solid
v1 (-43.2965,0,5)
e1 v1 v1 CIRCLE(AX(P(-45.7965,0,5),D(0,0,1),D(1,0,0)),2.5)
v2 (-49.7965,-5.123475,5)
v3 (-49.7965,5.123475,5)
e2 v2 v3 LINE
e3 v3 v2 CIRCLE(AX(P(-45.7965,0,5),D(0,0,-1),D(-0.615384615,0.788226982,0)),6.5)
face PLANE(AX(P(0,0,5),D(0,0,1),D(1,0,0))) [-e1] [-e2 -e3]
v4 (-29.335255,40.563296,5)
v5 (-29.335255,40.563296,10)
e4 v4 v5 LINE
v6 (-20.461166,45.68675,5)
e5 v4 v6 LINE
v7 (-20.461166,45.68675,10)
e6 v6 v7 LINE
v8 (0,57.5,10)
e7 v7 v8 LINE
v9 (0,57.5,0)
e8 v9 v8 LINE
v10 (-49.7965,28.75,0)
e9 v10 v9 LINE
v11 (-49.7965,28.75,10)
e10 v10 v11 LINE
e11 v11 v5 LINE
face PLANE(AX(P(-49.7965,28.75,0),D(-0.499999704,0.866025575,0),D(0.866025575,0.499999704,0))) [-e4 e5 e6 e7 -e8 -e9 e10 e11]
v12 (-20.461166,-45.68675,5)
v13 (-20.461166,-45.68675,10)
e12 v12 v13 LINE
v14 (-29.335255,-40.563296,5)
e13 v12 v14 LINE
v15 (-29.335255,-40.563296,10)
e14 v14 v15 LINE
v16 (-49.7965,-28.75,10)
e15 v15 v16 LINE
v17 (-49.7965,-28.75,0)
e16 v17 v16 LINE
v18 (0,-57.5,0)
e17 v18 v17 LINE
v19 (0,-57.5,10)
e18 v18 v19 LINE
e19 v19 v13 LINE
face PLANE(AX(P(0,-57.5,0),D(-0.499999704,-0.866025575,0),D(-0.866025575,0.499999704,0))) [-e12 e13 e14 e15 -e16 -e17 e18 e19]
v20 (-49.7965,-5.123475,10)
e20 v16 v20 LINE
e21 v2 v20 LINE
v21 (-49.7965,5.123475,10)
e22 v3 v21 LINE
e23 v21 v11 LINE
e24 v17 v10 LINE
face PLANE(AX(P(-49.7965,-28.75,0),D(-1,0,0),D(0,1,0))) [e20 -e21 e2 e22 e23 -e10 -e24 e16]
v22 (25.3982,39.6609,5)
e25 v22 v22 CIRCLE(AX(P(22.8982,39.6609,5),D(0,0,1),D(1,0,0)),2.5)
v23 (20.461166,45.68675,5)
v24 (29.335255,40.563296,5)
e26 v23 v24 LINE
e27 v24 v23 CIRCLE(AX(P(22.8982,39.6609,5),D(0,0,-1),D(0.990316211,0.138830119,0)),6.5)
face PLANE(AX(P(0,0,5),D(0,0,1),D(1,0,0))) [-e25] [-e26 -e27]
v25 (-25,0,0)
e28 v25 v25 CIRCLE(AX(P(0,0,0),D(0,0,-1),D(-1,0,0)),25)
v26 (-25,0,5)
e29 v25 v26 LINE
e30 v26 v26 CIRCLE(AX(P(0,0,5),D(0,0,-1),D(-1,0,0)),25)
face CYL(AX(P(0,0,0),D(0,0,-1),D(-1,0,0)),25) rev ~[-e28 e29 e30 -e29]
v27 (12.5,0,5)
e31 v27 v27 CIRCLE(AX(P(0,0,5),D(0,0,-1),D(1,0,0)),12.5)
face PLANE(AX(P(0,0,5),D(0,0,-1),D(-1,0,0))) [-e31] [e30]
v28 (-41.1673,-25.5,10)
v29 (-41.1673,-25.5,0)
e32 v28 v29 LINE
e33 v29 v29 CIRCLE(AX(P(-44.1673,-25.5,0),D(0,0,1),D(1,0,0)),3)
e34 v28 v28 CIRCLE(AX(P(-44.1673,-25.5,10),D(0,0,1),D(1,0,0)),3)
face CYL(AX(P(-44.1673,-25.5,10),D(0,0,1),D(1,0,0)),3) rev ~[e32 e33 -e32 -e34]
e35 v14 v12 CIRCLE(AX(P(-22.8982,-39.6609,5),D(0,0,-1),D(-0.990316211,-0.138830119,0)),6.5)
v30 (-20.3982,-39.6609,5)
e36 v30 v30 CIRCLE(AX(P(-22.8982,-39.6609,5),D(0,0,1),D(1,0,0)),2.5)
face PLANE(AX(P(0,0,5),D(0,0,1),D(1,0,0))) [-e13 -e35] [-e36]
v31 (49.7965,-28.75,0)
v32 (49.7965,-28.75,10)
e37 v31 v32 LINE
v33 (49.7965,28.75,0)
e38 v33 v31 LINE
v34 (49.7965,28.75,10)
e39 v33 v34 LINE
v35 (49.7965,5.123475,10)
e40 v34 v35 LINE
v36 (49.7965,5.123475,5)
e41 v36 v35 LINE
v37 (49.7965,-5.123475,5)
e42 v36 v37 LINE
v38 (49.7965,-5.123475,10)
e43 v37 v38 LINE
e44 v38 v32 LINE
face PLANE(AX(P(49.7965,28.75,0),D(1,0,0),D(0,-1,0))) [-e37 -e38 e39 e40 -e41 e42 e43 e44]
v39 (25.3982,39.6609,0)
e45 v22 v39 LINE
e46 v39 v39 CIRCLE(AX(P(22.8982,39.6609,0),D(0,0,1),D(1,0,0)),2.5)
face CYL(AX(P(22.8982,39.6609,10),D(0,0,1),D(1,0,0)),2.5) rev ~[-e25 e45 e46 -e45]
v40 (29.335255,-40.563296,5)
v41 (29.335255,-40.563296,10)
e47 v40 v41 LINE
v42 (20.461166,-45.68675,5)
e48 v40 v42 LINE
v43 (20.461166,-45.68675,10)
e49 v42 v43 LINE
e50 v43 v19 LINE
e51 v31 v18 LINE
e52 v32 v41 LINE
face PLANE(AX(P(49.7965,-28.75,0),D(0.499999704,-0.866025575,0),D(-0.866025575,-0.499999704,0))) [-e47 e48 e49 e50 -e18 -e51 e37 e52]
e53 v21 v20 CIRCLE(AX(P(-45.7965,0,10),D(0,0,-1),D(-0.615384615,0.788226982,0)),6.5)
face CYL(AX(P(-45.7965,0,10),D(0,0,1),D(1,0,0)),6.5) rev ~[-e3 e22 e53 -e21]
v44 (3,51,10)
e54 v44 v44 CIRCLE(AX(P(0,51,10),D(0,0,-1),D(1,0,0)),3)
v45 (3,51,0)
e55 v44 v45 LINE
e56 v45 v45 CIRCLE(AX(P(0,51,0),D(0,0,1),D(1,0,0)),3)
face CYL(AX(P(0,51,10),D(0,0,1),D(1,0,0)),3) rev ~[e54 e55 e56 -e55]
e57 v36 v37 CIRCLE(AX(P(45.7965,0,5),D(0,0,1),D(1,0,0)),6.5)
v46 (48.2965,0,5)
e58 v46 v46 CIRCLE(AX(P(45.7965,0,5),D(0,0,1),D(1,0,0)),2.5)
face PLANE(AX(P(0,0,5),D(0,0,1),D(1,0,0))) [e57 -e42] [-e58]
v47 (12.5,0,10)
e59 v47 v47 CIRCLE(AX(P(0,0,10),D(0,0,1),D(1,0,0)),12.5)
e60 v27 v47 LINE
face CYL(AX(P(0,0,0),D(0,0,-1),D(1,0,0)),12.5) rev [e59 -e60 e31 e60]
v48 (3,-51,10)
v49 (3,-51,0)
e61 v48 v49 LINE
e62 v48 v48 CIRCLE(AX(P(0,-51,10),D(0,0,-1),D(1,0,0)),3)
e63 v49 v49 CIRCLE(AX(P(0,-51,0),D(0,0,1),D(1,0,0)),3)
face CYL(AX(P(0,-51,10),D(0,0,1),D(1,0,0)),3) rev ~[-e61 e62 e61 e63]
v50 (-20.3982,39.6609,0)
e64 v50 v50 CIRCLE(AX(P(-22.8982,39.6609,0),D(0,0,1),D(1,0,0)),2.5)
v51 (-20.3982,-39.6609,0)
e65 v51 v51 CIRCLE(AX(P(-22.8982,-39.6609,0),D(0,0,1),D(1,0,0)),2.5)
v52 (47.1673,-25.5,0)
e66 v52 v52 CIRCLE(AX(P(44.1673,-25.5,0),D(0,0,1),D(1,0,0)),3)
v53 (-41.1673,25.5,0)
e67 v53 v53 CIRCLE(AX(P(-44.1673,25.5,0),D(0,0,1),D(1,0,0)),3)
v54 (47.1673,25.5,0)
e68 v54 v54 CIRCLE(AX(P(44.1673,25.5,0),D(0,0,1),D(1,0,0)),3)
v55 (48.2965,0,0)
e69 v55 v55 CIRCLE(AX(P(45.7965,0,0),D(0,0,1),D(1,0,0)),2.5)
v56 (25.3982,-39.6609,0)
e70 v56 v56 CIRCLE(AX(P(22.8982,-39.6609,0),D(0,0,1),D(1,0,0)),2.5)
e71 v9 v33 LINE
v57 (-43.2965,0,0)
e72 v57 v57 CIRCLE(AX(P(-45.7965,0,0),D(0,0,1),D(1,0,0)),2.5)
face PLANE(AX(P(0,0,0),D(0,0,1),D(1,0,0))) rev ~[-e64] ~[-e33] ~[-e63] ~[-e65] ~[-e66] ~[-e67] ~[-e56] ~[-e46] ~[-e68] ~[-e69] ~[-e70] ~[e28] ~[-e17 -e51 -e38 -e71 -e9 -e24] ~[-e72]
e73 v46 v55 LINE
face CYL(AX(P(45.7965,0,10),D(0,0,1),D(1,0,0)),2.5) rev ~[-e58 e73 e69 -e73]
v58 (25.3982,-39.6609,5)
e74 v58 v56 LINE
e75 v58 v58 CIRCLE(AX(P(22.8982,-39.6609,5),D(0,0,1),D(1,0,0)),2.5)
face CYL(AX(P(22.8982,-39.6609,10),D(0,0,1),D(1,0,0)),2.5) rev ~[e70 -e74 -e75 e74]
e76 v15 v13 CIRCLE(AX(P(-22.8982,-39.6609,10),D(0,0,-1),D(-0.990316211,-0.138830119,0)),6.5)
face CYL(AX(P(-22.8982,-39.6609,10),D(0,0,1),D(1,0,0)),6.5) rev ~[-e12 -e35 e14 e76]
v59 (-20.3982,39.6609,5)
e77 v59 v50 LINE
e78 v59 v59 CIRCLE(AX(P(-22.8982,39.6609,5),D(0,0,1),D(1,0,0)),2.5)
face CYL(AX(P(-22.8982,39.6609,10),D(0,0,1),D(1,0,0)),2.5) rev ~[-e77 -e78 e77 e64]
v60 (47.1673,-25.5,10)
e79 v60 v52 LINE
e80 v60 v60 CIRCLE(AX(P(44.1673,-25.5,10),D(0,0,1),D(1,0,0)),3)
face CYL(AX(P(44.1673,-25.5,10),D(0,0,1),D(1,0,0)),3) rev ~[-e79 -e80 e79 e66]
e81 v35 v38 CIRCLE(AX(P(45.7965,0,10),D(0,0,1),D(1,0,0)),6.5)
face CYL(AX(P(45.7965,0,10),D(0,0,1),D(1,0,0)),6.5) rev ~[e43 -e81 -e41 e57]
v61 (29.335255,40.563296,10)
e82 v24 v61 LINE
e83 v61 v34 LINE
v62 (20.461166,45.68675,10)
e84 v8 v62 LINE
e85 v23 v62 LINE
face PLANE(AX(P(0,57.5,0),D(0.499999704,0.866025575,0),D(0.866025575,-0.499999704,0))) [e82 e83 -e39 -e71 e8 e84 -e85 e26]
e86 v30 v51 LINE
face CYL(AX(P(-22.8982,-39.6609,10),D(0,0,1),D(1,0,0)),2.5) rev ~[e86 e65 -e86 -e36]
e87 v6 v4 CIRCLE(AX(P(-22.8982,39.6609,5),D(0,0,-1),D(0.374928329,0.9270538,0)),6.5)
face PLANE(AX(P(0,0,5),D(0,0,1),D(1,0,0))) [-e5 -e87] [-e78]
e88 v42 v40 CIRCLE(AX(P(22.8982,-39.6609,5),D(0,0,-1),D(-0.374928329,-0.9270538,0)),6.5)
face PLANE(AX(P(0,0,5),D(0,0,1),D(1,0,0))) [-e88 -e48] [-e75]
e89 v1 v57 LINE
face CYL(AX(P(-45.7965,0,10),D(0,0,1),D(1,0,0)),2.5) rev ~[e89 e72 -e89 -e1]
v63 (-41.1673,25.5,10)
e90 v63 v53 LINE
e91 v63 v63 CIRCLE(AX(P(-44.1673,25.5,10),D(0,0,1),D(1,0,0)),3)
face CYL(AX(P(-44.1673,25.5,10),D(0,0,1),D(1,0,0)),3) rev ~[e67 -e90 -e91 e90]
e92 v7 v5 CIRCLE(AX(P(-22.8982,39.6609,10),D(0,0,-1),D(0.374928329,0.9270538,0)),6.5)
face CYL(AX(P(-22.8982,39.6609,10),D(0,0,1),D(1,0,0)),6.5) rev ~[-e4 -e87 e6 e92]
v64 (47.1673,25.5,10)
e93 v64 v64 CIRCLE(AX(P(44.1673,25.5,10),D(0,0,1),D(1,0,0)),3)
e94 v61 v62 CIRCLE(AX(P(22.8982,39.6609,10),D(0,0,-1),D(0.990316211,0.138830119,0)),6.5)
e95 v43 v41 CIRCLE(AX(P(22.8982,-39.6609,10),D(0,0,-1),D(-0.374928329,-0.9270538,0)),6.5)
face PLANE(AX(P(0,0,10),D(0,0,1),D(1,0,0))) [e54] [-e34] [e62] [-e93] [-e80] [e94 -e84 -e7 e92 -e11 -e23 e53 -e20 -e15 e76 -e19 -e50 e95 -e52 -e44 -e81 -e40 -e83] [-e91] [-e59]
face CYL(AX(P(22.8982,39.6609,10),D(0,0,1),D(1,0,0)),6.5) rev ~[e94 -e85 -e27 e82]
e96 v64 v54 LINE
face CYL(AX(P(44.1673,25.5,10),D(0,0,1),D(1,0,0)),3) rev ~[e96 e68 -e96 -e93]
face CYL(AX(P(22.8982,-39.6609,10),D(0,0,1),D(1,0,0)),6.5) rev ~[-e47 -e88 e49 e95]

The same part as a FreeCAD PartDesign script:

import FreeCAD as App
import Part
import Sketcher

V = App.Vector
Q = App.Units.Quantity

doc = App.newDocument("Part")
body = doc.addObject("PartDesign::Body", "Body")

# Sketch on XY plane
sketch1 = body.newObject("Sketcher::SketchObject", "Sketch")
sketch1.AttachmentSupport = (doc.getObject("XY_Plane"), [""])
sketch1.MapMode = "FlatFace"
sketch1.addGeometry([
    Part.LineSegment(V(50, 29, 0), V(0, 58, 0)),  # 0
    Part.LineSegment(V(0, 58, 0), V(-50, 29, 0)),  # 1
    Part.LineSegment(V(-50, 29, 0), V(-50, -29, 0)),  # 2
    Part.LineSegment(V(-50, -29, 0), V(0, -58, 0)),  # 3
    Part.LineSegment(V(0, -58, 0), V(50, -29, 0)),  # 4
    Part.LineSegment(V(50, -29, 0), V(50, 29, 0)),  # 5
    Part.Circle(V(0, 0, 0), V(0, 0, 1), 12),  # 6
], False)
sketch1.addConstraint([
    Sketcher.Constraint("Coincident", 0, 2, 1, 1),
    Sketcher.Constraint("Coincident", 1, 2, 2, 1),
    Sketcher.Constraint("Coincident", 2, 2, 3, 1),
    Sketcher.Constraint("Coincident", 3, 2, 4, 1),
    Sketcher.Constraint("Coincident", 4, 2, 5, 1),
    Sketcher.Constraint("Coincident", 5, 2, 0, 1),
    Sketcher.Constraint("Vertical", 2),
    Sketcher.Constraint("Vertical", 5),
    Sketcher.Constraint("Coincident", 6, 3, -1, 1),
    Sketcher.Constraint("Symmetric", 0, 2, 3, 2, -1, 1),
    Sketcher.Constraint("Symmetric", 1, 2, 4, 2, -1, 1),
    Sketcher.Constraint("PointOnObject", 0, 2, -2),
    Sketcher.Constraint("Parallel", 0, 3),
    Sketcher.Constraint("Horizontal", 2, 2, 4, 2),
    Sketcher.Constraint("Diameter", 6, Q("25 mm")),
    Sketcher.Constraint("Angle", 3, Q("-30 deg")),
    Sketcher.Constraint("DistanceY", 3, 2, 0, 2, Q("115 mm")),
    Sketcher.Constraint("DistanceY", 2, 2, 2, 1, Q("57.5 mm")),
])
pad1 = body.newObject("PartDesign::Pad", "Pad")
pad1.Profile = sketch1
pad1.Length = 10

# Sketch on XY plane
sketch2 = body.newObject("Sketcher::SketchObject", "Sketch001")
sketch2.AttachmentSupport = (doc.getObject("XY_Plane"), [""])
sketch2.MapMode = "FlatFace"
sketch2.AttachmentOffset = App.Placement(V(0, 0, 10), App.Rotation())
sketch2.addGeometry([
    Part.Circle(V(0, 51, 0), V(0, 0, 1), 3),  # 0
    Part.Circle(V(0, -51, 0), V(0, 0, 1), 3),  # 1
    Part.Circle(V(-44.2, 25.5, 0), V(0, 0, 1), 3),  # 2
    Part.Circle(V(-44.2, -25.5, 0), V(0, 0, 1), 3),  # 3
    Part.Circle(V(44.2, -25.5, 0), V(0, 0, 1), 3),  # 4
    Part.Circle(V(44.2, 25.5, 0), V(0, 0, 1), 3),  # 5
], False)
sketch2.addConstraint([
    Sketcher.Constraint("Equal", 0, 1),
    Sketcher.Constraint("Equal", 1, 2),
    Sketcher.Constraint("Equal", 2, 3),
    Sketcher.Constraint("Equal", 3, 4),
    Sketcher.Constraint("Equal", 4, 5),
    Sketcher.Constraint("Symmetric", 0, 3, 1, 3, -1, 1),
    Sketcher.Constraint("Symmetric", 2, 3, 4, 3, -1, 1),
    Sketcher.Constraint("Symmetric", 3, 3, 5, 3, -1, 1),
    Sketcher.Constraint("Symmetric", 3, 3, 4, 3, -2),
    Sketcher.Constraint("PointOnObject", 0, 3, -2),
    Sketcher.Constraint("Diameter", 0, Q("6 mm")),
    Sketcher.Constraint("DistanceY", 1, 3, 0, 3, Q("102 mm")),
    Sketcher.Constraint("DistanceY", 3, 3, 2, 3, Q("51 mm")),
    Sketcher.Constraint("DistanceX", 2, 3, -1, 1, Q("44.1673 mm")),
])
pocket1 = body.newObject("PartDesign::Pocket", "Pocket")
pocket1.Profile = sketch2
pocket1.Type = "ThroughAll"

# Sketch on XY plane
sketch3 = body.newObject("Sketcher::SketchObject", "Sketch002")
sketch3.AttachmentSupport = (doc.getObject("XY_Plane"), [""])
sketch3.MapMode = "FlatFace"
sketch3.addGeometry(Part.Circle(V(0, 0, 0), V(0, 0, 1), 25), False)
sketch3.addConstraint([
    Sketcher.Constraint("Coincident", 0, 3, -1, 1),
    Sketcher.Constraint("Diameter", 0, Q("50 mm")),
])
pocket2 = body.newObject("PartDesign::Pocket", "Pocket001")
pocket2.Profile = sketch3
pocket2.Length = 5
pocket2.Reversed = True

# Sketch on XY plane
sketch4 = body.newObject("Sketcher::SketchObject", "Sketch003")
sketch4.AttachmentSupport = (doc.getObject("XY_Plane"), [""])
sketch4.MapMode = "FlatFace"
sketch4.AttachmentOffset = App.Placement(V(0, 0, 10), App.Rotation())
sketch4.addGeometry([
    Part.Circle(V(-45.8, 0, 0), V(0, 0, 1), 2.5),  # 0
    Part.Circle(V(-22.9, -39.7, 0), V(0, 0, 1), 2.5),  # 1
    Part.Circle(V(22.9, -39.7, 0), V(0, 0, 1), 2.5),  # 2
    Part.Circle(V(45.8, 0, 0), V(0, 0, 1), 2.5),  # 3
    Part.Circle(V(22.9, 39.7, 0), V(0, 0, 1), 2.5),  # 4
    Part.Circle(V(-22.9, 39.7, 0), V(0, 0, 1), 2.5),  # 5
], False)
sketch4.addConstraint([
    Sketcher.Constraint("Equal", 0, 1),
    Sketcher.Constraint("Equal", 1, 2),
    Sketcher.Constraint("Equal", 2, 3),
    Sketcher.Constraint("Equal", 3, 4),
    Sketcher.Constraint("Equal", 4, 5),
    Sketcher.Constraint("Symmetric", 0, 3, 3, 3, -1, 1),
    Sketcher.Constraint("Symmetric", 1, 3, 4, 3, -1, 1),
    Sketcher.Constraint("Symmetric", 2, 3, 5, 3, -1, 1),
    Sketcher.Constraint("Symmetric", 1, 3, 2, 3, -2),
    Sketcher.Constraint("PointOnObject", 0, 3, -1),
    Sketcher.Constraint("Diameter", 0, Q("5 mm")),
    Sketcher.Constraint("DistanceY", 1, 3, -1, 1, Q("39.661 mm")),
    Sketcher.Constraint("DistanceX", 0, 3, 3, 3, Q("91.593 mm")),
    Sketcher.Constraint("DistanceX", 1, 3, -1, 1, Q("22.8982 mm")),
])
pocket3 = body.newObject("PartDesign::Pocket", "Pocket002")
pocket3.Profile = sketch4
pocket3.Type = "ThroughAll"

# Sketch on XY plane
sketch5 = body.newObject("Sketcher::SketchObject", "Sketch004")
sketch5.AttachmentSupport = (doc.getObject("XY_Plane"), [""])
sketch5.MapMode = "FlatFace"
sketch5.AttachmentOffset = App.Placement(V(0, 0, 10), App.Rotation())
sketch5.addGeometry([
    Part.Circle(V(-23, 40, 0), V(0, 0, 1), 6),  # 0
    Part.Circle(V(-46, 0, 0), V(0, 0, 1), 6),  # 1
    Part.Circle(V(-23, -40, 0), V(0, 0, 1), 6),  # 2
    Part.Circle(V(23, -40, 0), V(0, 0, 1), 6),  # 3
    Part.Circle(V(46, 0, 0), V(0, 0, 1), 6),  # 4
    Part.Circle(V(23, 40, 0), V(0, 0, 1), 6),  # 5
], False)
sketch5.addConstraint([
    Sketcher.Constraint("Equal", 0, 1),
    Sketcher.Constraint("Equal", 1, 2),
    Sketcher.Constraint("Equal", 2, 3),
    Sketcher.Constraint("Equal", 3, 4),
    Sketcher.Constraint("Equal", 4, 5),
    Sketcher.Constraint("Symmetric", 0, 3, 3, 3, -1, 1),
    Sketcher.Constraint("Symmetric", 1, 3, 4, 3, -1, 1),
    Sketcher.Constraint("Symmetric", 2, 3, 5, 3, -1, 1),
    Sketcher.Constraint("Symmetric", 2, 3, 3, 3, -2),
    Sketcher.Constraint("PointOnObject", 1, 3, -1),
    Sketcher.Constraint("Diameter", 0, Q("13 mm")),
    Sketcher.Constraint("DistanceY", -1, 1, 0, 3, Q("39.661 mm")),
    Sketcher.Constraint("DistanceX", 1, 3, 4, 3, Q("91.593 mm")),
    Sketcher.Constraint("DistanceX", 0, 3, -1, 1, Q("22.8982 mm")),
])
pocket4 = body.newObject("PartDesign::Pocket", "Pocket003")
pocket4.Profile = sketch5
pocket4.Length = 5

doc.recompute()
